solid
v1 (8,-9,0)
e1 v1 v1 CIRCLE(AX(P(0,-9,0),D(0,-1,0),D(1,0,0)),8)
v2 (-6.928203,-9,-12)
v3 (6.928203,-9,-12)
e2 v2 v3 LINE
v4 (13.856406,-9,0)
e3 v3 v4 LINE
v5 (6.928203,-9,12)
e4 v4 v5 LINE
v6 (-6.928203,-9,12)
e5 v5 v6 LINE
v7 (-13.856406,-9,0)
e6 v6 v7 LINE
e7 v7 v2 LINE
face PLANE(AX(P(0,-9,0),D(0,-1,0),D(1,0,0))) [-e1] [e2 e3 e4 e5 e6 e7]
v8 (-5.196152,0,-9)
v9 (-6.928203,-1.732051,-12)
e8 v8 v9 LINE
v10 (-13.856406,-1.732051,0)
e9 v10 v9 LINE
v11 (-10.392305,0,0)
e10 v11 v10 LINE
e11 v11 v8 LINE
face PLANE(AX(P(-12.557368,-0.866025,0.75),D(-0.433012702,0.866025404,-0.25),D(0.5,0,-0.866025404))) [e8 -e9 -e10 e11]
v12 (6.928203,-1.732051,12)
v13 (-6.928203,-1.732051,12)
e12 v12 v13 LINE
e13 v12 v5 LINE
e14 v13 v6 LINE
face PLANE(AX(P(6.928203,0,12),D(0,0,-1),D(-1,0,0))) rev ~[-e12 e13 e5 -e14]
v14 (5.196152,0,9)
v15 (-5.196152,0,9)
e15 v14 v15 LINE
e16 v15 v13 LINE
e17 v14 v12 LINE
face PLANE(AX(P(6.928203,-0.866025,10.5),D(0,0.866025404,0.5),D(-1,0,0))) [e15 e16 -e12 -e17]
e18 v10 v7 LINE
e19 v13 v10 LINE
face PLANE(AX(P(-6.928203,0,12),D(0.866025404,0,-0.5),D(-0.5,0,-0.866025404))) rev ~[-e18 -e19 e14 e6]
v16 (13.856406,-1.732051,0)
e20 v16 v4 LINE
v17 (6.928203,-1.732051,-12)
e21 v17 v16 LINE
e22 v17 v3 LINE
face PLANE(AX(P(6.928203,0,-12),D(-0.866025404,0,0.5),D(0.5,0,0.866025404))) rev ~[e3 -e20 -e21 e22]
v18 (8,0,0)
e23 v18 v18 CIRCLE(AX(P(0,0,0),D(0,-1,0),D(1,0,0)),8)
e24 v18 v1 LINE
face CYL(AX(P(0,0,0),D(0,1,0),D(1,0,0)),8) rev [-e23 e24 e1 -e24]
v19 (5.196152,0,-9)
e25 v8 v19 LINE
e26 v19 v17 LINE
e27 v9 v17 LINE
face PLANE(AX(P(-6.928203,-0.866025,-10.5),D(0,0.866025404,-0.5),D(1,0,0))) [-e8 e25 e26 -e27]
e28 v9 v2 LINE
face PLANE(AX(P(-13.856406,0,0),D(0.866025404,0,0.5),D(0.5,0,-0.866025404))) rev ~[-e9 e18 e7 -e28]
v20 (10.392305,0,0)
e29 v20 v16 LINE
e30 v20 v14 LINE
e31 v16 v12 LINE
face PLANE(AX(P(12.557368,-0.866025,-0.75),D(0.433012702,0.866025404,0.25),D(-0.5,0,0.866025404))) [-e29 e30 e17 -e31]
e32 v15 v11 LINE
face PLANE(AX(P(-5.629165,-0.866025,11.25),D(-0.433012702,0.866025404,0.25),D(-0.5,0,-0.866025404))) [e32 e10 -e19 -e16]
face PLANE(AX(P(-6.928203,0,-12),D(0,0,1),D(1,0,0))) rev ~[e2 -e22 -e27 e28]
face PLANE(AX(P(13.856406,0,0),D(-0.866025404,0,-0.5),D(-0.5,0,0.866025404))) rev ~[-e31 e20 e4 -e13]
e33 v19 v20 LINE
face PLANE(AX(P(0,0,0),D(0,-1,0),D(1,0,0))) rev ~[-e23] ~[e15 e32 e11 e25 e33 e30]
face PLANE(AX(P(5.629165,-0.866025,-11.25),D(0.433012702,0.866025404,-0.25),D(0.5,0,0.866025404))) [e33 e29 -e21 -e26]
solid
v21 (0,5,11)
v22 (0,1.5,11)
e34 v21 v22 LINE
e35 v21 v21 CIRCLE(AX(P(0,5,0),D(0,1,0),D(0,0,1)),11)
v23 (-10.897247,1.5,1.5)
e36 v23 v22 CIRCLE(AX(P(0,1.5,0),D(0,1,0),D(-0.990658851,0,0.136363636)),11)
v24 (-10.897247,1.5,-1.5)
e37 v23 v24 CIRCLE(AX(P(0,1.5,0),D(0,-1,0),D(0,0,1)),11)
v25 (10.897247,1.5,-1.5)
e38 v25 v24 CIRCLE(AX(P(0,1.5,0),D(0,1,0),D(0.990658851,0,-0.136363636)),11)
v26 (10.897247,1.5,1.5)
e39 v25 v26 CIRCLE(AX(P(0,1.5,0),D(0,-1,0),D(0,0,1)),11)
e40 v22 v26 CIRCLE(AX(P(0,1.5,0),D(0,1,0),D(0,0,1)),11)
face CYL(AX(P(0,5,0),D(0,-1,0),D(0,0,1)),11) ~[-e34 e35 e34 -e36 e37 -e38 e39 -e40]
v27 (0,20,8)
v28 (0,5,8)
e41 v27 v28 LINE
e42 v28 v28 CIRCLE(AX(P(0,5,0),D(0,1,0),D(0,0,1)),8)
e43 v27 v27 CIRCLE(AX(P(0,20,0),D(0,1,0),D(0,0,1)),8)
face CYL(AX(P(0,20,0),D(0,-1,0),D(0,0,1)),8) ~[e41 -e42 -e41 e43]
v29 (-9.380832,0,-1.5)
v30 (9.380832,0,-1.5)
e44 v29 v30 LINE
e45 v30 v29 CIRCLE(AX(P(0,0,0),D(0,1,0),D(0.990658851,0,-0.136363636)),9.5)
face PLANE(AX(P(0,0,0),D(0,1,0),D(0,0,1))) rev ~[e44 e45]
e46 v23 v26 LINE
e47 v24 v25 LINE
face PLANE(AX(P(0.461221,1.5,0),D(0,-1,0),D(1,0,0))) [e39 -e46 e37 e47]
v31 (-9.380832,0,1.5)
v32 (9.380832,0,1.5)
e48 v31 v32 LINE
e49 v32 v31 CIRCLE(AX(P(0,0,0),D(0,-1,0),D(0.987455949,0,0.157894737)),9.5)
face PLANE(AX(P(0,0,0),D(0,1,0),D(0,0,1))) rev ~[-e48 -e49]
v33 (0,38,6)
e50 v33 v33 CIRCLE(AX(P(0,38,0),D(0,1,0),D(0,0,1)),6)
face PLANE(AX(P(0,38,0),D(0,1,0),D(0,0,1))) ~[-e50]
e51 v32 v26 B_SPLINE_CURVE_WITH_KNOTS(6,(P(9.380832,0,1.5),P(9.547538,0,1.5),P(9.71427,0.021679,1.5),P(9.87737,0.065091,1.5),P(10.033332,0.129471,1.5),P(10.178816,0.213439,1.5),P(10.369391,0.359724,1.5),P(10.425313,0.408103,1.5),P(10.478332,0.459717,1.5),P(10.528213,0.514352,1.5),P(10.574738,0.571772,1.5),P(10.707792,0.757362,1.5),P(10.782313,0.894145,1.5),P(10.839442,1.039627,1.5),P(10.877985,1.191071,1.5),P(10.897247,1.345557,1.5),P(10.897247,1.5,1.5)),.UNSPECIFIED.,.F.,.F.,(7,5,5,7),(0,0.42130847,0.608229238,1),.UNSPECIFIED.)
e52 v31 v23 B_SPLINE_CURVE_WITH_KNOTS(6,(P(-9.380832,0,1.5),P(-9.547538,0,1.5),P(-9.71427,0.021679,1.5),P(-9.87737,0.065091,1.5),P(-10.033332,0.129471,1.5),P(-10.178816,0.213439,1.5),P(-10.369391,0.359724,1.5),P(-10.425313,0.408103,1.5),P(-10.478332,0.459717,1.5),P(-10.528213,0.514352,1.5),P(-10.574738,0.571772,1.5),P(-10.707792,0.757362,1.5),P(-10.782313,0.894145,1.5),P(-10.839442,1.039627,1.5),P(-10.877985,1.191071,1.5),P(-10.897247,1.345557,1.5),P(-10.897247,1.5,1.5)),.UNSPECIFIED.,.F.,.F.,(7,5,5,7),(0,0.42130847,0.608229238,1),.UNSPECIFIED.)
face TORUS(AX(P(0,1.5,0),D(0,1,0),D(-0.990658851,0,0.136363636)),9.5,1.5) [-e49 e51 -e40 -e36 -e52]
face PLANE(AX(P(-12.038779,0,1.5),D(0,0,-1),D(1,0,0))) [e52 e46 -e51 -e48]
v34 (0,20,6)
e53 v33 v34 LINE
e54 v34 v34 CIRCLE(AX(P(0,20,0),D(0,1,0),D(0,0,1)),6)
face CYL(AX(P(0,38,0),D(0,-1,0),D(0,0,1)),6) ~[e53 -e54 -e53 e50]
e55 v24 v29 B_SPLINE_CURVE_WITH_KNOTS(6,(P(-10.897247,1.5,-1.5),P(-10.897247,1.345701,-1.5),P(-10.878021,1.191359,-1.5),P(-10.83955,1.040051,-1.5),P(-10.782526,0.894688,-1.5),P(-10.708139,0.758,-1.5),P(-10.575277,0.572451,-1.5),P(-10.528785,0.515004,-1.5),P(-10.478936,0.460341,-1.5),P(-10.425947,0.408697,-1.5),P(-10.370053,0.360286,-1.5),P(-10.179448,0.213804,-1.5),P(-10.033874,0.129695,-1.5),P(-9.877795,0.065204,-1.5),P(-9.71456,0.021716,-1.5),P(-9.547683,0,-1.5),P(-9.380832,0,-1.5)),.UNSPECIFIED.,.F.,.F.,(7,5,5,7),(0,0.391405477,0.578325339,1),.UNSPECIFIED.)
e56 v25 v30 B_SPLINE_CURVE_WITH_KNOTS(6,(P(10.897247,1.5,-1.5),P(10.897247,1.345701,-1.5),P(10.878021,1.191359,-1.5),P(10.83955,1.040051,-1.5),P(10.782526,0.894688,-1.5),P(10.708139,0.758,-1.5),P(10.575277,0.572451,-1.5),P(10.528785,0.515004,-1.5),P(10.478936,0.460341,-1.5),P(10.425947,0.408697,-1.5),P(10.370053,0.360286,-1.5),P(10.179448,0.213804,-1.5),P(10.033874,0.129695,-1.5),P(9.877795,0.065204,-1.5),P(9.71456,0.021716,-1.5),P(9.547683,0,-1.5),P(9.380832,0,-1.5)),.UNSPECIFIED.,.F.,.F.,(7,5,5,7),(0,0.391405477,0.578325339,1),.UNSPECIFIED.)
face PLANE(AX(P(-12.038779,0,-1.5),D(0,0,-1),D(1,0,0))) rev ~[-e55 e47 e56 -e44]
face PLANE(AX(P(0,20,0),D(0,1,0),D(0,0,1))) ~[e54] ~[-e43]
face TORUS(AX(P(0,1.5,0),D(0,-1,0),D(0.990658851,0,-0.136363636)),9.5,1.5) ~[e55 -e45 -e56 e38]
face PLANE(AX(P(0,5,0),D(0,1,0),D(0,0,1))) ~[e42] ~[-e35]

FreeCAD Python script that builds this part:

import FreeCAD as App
import Part
import Sketcher
from FreeCAD import Vector
Q = App.Units.Quantity


def edges_at(feature, points):
    """Names of the edges that pass closest to the given points."""
    edges = feature.Shape.Edges
    near = lambda p: min(range(len(edges)), key=lambda i: edges[i].distToShape(Part.Vertex(*p))[0])
    return sorted({f"Edge{near(p) + 1}" for p in points})

doc = App.newDocument("Part")
body = doc.addObject("PartDesign::Body", "Body")

# Sketch on YZ plane
sketch1 = doc.addObject("Sketcher::SketchObject", "Sketch")
body.addObject(sketch1)
sketch1.AttachmentSupport = (doc.YZ_Plane, [""])
sketch1.MapMode = "FlatFace"
sketch1.addGeometry([
    Part.LineSegment(Vector(0, 11, 0), Vector(0, 0, 0)),  # 0
    Part.LineSegment(Vector(0, 0, 0), Vector(38, 0, 0)),  # 1
    Part.LineSegment(Vector(38, 0, 0), Vector(38, 6, 0)),  # 2
    Part.LineSegment(Vector(38, 6, 0), Vector(20, 6, 0)),  # 3
    Part.LineSegment(Vector(20, 6, 0), Vector(20, 8, 0)),  # 4
    Part.LineSegment(Vector(20, 8, 0), Vector(5, 8, 0)),  # 5
    Part.LineSegment(Vector(5, 8, 0), Vector(5, 11, 0)),  # 6
    Part.LineSegment(Vector(5, 11, 0), Vector(0, 11, 0)),  # 7
], False)
sketch1.addConstraint([
    Sketcher.Constraint("Coincident", 0, 2, 1, 1),
    Sketcher.Constraint("Coincident", 1, 2, 2, 1),
    Sketcher.Constraint("Coincident", 2, 2, 3, 1),
    Sketcher.Constraint("Coincident", 3, 2, 4, 1),
    Sketcher.Constraint("Coincident", 4, 2, 5, 1),
    Sketcher.Constraint("Coincident", 5, 2, 6, 1),
    Sketcher.Constraint("Coincident", 6, 2, 7, 1),
    Sketcher.Constraint("Coincident", 7, 2, 0, 1),
    Sketcher.Constraint("Vertical", 0),
    Sketcher.Constraint("Horizontal", 1),
    Sketcher.Constraint("Vertical", 2),
    Sketcher.Constraint("Horizontal", 3),
    Sketcher.Constraint("Vertical", 4),
    Sketcher.Constraint("Horizontal", 5),
    Sketcher.Constraint("Vertical", 6),
    Sketcher.Constraint("Horizontal", 7),
    Sketcher.Constraint("Coincident", 0, 2, -1, 1),
    Sketcher.Constraint("DistanceX", 1, 1, 1, 2, 38.0),
    Sketcher.Constraint("DistanceX", 3, 2, 3, 1, 18.0),
    Sketcher.Constraint("DistanceX", 5, 2, 5, 1, 15.0),
    Sketcher.Constraint("DistanceY", 0, 2, 0, 1, 11.0),
    Sketcher.Constraint("DistanceY", 2, 1, 2, 2, 6.0),
    Sketcher.Constraint("DistanceY", 4, 1, 4, 2, 2.0),
])
revolution = doc.addObject("PartDesign::Revolution", "Revolution")
body.addObject(revolution)
revolution.Profile = sketch1
revolution.ReferenceAxis = (sketch1, ["H_Axis"])
revolution.Angle = 360

# Sketch on XZ plane
sketch2 = doc.addObject("Sketcher::SketchObject", "Sketch001")
body.addObject(sketch2)
sketch2.AttachmentSupport = (doc.XZ_Plane, [""])
sketch2.MapMode = "FlatFace"
sketch2.addGeometry([
    Part.LineSegment(Vector(-12.038779, 1.5, 0), Vector(-12.038779, -1.5, 0)),
    Part.LineSegment(Vector(-12.038779, -1.5, 0), Vector(12.961221, -1.5, 0)),
    Part.LineSegment(Vector(12.961221, -1.5, 0), Vector(12.961221, 1.5, 0)),
    Part.LineSegment(Vector(12.961221, 1.5, 0), Vector(-12.038779, 1.5, 0)),
], False)
sketch2.addConstraint([
    Sketcher.Constraint("Coincident", 0, 2, 1, 1),
    Sketcher.Constraint("Coincident", 1, 2, 2, 1),
    Sketcher.Constraint("Coincident", 2, 2, 3, 1),
    Sketcher.Constraint("Coincident", 3, 2, 0, 1),
    Sketcher.Constraint("Vertical", 0),
    Sketcher.Constraint("Horizontal", 1),
    Sketcher.Constraint("Vertical", 2),
    Sketcher.Constraint("Horizontal", 3),
    Sketcher.Constraint("DistanceX", 1, 1, 1, 2, 25.0),
    Sketcher.Constraint("DistanceY", 0, 2, 0, 1, 3.0),
    Sketcher.Constraint("DistanceY", 0, 2, -1, 1, 1.5),
    Sketcher.Constraint("DistanceX", 0, 2, -1, 1, 12.038779),
])
pocket1 = doc.addObject("PartDesign::Pocket", "Pocket")
body.addObject(pocket1)
pocket1.Profile = sketch2
pocket1.Length = 1.5
doc.recompute()

fillet = doc.addObject("PartDesign::Fillet", "Fillet")
body.addObject(fillet)
fillet.Base = (pocket1, edges_at(pocket1, [(-7.228, 0, 8.292), (7.228, 0, 8.292), (0, 0, -11)]))
fillet.Radius = 1.5
body2 = doc.addObject("PartDesign::Body", "Body001")

# Sketch on XZ plane
sketch3 = doc.addObject("Sketcher::SketchObject", "Sketch002")
body2.addObject(sketch3)
sketch3.AttachmentSupport = (doc.getObject("XZ_Plane001"), [""])
sketch3.MapMode = "FlatFace"
sketch3.addGeometry([
    Part.LineSegment(Vector(-6.928203, -12, 0), Vector(6.928203, -12, 0)),  # 0
    Part.LineSegment(Vector(6.928203, -12, 0), Vector(13.856406, 0, 0)),  # 1
    Part.LineSegment(Vector(13.856406, 0, 0), Vector(6.928203, 12, 0)),  # 2
    Part.LineSegment(Vector(6.928203, 12, 0), Vector(-6.928203, 12, 0)),  # 3
    Part.LineSegment(Vector(-6.928203, 12, 0), Vector(-13.856406, 0, 0)),  # 4
    Part.LineSegment(Vector(-13.856406, 0, 0), Vector(-6.928203, -12, 0)),  # 5
    Part.Circle(Vector(0, 0, 0), Vector(0, 0, 1), 8),  # 6
], False)
sketch3.addConstraint([
    Sketcher.Constraint("Coincident", 0, 2, 1, 1),
    Sketcher.Constraint("Coincident", 1, 2, 2, 1),
    Sketcher.Constraint("Coincident", 2, 2, 3, 1),
    Sketcher.Constraint("Coincident", 3, 2, 4, 1),
    Sketcher.Constraint("Coincident", 4, 2, 5, 1),
    Sketcher.Constraint("Coincident", 5, 2, 0, 1),
    Sketcher.Constraint("Horizontal", 0),
    Sketcher.Constraint("Horizontal", 3),
    Sketcher.Constraint("Coincident", 6, 3, -1, 1),
    Sketcher.Constraint("Symmetric", 0, 2, 3, 2, -1, 1),
    Sketcher.Constraint("Symmetric", 1, 2, 4, 2, -1, 1),
    Sketcher.Constraint("PointOnObject", 1, 2, -1),
    Sketcher.Constraint("Parallel", 2, 5),
    Sketcher.Constraint("Vertical", 0, 2, 2, 2),
    Sketcher.Constraint("Diameter", 6, 16.0),
    Sketcher.Constraint("Angle", 1, Q("60 deg")),
    Sketcher.Constraint("DistanceY", 0, 2, -1, 1, 12.0),
    Sketcher.Constraint("DistanceX", 0, 1, 0, 2, 13.856406),
])
pad1 = doc.addObject("PartDesign::Pad", "Pad")
body2.addObject(pad1)
pad1.Profile = sketch3
pad1.Length = 9
doc.recompute()

chamfer = doc.addObject("PartDesign::Chamfer", "Chamfer")
body2.addObject(chamfer)
chamfer.Base = (pad1, edges_at(pad1, [
    (0, 0, 12),
    (10.392, 0, 6),
    (10.392, 0, -6),
    (0, 0, -12),
    (-10.392, 0, -6),
    (-10.392, 0, 6),
]))
chamfer.ChamferType = "Two distances"
chamfer.Size = 3
chamfer.Size2 = 1.732051
chamfer.FlipDirection = True

doc.recompute()
